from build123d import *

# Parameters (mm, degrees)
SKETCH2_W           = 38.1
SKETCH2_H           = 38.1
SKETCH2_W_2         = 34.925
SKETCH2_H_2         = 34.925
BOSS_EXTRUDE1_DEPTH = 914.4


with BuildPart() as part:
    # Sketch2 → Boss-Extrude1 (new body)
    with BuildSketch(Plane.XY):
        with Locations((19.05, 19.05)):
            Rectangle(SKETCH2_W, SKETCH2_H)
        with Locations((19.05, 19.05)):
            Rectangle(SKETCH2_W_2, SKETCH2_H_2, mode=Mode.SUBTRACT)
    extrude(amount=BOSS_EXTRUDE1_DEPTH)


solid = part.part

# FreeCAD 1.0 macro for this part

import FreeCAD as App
import Part
import Sketcher
Q = App.Units.Quantity

doc = App.newDocument("Part")
body = doc.addObject("PartDesign::Body", "Body")

sketch1 = body.newObject("Sketcher::SketchObject", "Sketch")
sketch1.AttachmentSupport = (doc.getObject("XY_Plane"), [""])
sketch1.MapMode = "FlatFace"
sketch1.addGeometry([
    Part.LineSegment(App.Vector(0, 38, 0), App.Vector(0, 0, 0)),
    Part.LineSegment(App.Vector(0, 0, 0), App.Vector(38, 0, 0)),
    Part.LineSegment(App.Vector(38, 0, 0), App.Vector(38, 38, 0)),
    Part.LineSegment(App.Vector(38, 38, 0), App.Vector(0, 38, 0)),
    Part.LineSegment(App.Vector(37, 2, 0), App.Vector(2, 2, 0)),
    Part.LineSegment(App.Vector(2, 2, 0), App.Vector(2, 37, 0)),
    Part.LineSegment(App.Vector(2, 37, 0), App.Vector(37, 37, 0)),
    Part.LineSegment(App.Vector(37, 37, 0), App.Vector(37, 2, 0)),
], False)
sketch1.addConstraint([
    Sketcher.Constraint("Coincident", 0, 2, 1, 1),
    Sketcher.Constraint("Coincident", 1, 2, 2, 1),
    Sketcher.Constraint("Coincident", 2, 2, 3, 1),
    Sketcher.Constraint("Coincident", 3, 2, 0, 1),
    Sketcher.Constraint("Coincident", 4, 2, 5, 1),
    Sketcher.Constraint("Coincident", 5, 2, 6, 1),
    Sketcher.Constraint("Coincident", 6, 2, 7, 1),
    Sketcher.Constraint("Coincident", 7, 2, 4, 1),
    Sketcher.Constraint("Vertical", 0),
    Sketcher.Constraint("Horizontal", 1),
    Sketcher.Constraint("Vertical", 2),
    Sketcher.Constraint("Horizontal", 3),
    Sketcher.Constraint("Horizontal", 4),
    Sketcher.Constraint("Vertical", 5),
    Sketcher.Constraint("Horizontal", 6),
    Sketcher.Constraint("Vertical", 7),
    Sketcher.Constraint("Coincident", 0, 2, -1, 1),
    Sketcher.Constraint("Equal", 3, 0),
    Sketcher.Constraint("Equal", 6, 5),
    Sketcher.Constraint("DistanceX", 1, 1, 1, 2, Q("1.5 in")),
    Sketcher.Constraint("DistanceX", 4, 2, 4, 1, Q("1.375 in")),
    Sketcher.Constraint("DistanceX", -1, 1, 4, 2, Q("0.0625 in")),
    Sketcher.Constraint("DistanceY", -1, 1, 4, 2, Q("0.0625 in")),
])
pad1 = body.newObject("PartDesign::Pad", "Pad")
pad1.Profile = sketch1
pad1.Length = Q("36 in")

doc.recompute()
